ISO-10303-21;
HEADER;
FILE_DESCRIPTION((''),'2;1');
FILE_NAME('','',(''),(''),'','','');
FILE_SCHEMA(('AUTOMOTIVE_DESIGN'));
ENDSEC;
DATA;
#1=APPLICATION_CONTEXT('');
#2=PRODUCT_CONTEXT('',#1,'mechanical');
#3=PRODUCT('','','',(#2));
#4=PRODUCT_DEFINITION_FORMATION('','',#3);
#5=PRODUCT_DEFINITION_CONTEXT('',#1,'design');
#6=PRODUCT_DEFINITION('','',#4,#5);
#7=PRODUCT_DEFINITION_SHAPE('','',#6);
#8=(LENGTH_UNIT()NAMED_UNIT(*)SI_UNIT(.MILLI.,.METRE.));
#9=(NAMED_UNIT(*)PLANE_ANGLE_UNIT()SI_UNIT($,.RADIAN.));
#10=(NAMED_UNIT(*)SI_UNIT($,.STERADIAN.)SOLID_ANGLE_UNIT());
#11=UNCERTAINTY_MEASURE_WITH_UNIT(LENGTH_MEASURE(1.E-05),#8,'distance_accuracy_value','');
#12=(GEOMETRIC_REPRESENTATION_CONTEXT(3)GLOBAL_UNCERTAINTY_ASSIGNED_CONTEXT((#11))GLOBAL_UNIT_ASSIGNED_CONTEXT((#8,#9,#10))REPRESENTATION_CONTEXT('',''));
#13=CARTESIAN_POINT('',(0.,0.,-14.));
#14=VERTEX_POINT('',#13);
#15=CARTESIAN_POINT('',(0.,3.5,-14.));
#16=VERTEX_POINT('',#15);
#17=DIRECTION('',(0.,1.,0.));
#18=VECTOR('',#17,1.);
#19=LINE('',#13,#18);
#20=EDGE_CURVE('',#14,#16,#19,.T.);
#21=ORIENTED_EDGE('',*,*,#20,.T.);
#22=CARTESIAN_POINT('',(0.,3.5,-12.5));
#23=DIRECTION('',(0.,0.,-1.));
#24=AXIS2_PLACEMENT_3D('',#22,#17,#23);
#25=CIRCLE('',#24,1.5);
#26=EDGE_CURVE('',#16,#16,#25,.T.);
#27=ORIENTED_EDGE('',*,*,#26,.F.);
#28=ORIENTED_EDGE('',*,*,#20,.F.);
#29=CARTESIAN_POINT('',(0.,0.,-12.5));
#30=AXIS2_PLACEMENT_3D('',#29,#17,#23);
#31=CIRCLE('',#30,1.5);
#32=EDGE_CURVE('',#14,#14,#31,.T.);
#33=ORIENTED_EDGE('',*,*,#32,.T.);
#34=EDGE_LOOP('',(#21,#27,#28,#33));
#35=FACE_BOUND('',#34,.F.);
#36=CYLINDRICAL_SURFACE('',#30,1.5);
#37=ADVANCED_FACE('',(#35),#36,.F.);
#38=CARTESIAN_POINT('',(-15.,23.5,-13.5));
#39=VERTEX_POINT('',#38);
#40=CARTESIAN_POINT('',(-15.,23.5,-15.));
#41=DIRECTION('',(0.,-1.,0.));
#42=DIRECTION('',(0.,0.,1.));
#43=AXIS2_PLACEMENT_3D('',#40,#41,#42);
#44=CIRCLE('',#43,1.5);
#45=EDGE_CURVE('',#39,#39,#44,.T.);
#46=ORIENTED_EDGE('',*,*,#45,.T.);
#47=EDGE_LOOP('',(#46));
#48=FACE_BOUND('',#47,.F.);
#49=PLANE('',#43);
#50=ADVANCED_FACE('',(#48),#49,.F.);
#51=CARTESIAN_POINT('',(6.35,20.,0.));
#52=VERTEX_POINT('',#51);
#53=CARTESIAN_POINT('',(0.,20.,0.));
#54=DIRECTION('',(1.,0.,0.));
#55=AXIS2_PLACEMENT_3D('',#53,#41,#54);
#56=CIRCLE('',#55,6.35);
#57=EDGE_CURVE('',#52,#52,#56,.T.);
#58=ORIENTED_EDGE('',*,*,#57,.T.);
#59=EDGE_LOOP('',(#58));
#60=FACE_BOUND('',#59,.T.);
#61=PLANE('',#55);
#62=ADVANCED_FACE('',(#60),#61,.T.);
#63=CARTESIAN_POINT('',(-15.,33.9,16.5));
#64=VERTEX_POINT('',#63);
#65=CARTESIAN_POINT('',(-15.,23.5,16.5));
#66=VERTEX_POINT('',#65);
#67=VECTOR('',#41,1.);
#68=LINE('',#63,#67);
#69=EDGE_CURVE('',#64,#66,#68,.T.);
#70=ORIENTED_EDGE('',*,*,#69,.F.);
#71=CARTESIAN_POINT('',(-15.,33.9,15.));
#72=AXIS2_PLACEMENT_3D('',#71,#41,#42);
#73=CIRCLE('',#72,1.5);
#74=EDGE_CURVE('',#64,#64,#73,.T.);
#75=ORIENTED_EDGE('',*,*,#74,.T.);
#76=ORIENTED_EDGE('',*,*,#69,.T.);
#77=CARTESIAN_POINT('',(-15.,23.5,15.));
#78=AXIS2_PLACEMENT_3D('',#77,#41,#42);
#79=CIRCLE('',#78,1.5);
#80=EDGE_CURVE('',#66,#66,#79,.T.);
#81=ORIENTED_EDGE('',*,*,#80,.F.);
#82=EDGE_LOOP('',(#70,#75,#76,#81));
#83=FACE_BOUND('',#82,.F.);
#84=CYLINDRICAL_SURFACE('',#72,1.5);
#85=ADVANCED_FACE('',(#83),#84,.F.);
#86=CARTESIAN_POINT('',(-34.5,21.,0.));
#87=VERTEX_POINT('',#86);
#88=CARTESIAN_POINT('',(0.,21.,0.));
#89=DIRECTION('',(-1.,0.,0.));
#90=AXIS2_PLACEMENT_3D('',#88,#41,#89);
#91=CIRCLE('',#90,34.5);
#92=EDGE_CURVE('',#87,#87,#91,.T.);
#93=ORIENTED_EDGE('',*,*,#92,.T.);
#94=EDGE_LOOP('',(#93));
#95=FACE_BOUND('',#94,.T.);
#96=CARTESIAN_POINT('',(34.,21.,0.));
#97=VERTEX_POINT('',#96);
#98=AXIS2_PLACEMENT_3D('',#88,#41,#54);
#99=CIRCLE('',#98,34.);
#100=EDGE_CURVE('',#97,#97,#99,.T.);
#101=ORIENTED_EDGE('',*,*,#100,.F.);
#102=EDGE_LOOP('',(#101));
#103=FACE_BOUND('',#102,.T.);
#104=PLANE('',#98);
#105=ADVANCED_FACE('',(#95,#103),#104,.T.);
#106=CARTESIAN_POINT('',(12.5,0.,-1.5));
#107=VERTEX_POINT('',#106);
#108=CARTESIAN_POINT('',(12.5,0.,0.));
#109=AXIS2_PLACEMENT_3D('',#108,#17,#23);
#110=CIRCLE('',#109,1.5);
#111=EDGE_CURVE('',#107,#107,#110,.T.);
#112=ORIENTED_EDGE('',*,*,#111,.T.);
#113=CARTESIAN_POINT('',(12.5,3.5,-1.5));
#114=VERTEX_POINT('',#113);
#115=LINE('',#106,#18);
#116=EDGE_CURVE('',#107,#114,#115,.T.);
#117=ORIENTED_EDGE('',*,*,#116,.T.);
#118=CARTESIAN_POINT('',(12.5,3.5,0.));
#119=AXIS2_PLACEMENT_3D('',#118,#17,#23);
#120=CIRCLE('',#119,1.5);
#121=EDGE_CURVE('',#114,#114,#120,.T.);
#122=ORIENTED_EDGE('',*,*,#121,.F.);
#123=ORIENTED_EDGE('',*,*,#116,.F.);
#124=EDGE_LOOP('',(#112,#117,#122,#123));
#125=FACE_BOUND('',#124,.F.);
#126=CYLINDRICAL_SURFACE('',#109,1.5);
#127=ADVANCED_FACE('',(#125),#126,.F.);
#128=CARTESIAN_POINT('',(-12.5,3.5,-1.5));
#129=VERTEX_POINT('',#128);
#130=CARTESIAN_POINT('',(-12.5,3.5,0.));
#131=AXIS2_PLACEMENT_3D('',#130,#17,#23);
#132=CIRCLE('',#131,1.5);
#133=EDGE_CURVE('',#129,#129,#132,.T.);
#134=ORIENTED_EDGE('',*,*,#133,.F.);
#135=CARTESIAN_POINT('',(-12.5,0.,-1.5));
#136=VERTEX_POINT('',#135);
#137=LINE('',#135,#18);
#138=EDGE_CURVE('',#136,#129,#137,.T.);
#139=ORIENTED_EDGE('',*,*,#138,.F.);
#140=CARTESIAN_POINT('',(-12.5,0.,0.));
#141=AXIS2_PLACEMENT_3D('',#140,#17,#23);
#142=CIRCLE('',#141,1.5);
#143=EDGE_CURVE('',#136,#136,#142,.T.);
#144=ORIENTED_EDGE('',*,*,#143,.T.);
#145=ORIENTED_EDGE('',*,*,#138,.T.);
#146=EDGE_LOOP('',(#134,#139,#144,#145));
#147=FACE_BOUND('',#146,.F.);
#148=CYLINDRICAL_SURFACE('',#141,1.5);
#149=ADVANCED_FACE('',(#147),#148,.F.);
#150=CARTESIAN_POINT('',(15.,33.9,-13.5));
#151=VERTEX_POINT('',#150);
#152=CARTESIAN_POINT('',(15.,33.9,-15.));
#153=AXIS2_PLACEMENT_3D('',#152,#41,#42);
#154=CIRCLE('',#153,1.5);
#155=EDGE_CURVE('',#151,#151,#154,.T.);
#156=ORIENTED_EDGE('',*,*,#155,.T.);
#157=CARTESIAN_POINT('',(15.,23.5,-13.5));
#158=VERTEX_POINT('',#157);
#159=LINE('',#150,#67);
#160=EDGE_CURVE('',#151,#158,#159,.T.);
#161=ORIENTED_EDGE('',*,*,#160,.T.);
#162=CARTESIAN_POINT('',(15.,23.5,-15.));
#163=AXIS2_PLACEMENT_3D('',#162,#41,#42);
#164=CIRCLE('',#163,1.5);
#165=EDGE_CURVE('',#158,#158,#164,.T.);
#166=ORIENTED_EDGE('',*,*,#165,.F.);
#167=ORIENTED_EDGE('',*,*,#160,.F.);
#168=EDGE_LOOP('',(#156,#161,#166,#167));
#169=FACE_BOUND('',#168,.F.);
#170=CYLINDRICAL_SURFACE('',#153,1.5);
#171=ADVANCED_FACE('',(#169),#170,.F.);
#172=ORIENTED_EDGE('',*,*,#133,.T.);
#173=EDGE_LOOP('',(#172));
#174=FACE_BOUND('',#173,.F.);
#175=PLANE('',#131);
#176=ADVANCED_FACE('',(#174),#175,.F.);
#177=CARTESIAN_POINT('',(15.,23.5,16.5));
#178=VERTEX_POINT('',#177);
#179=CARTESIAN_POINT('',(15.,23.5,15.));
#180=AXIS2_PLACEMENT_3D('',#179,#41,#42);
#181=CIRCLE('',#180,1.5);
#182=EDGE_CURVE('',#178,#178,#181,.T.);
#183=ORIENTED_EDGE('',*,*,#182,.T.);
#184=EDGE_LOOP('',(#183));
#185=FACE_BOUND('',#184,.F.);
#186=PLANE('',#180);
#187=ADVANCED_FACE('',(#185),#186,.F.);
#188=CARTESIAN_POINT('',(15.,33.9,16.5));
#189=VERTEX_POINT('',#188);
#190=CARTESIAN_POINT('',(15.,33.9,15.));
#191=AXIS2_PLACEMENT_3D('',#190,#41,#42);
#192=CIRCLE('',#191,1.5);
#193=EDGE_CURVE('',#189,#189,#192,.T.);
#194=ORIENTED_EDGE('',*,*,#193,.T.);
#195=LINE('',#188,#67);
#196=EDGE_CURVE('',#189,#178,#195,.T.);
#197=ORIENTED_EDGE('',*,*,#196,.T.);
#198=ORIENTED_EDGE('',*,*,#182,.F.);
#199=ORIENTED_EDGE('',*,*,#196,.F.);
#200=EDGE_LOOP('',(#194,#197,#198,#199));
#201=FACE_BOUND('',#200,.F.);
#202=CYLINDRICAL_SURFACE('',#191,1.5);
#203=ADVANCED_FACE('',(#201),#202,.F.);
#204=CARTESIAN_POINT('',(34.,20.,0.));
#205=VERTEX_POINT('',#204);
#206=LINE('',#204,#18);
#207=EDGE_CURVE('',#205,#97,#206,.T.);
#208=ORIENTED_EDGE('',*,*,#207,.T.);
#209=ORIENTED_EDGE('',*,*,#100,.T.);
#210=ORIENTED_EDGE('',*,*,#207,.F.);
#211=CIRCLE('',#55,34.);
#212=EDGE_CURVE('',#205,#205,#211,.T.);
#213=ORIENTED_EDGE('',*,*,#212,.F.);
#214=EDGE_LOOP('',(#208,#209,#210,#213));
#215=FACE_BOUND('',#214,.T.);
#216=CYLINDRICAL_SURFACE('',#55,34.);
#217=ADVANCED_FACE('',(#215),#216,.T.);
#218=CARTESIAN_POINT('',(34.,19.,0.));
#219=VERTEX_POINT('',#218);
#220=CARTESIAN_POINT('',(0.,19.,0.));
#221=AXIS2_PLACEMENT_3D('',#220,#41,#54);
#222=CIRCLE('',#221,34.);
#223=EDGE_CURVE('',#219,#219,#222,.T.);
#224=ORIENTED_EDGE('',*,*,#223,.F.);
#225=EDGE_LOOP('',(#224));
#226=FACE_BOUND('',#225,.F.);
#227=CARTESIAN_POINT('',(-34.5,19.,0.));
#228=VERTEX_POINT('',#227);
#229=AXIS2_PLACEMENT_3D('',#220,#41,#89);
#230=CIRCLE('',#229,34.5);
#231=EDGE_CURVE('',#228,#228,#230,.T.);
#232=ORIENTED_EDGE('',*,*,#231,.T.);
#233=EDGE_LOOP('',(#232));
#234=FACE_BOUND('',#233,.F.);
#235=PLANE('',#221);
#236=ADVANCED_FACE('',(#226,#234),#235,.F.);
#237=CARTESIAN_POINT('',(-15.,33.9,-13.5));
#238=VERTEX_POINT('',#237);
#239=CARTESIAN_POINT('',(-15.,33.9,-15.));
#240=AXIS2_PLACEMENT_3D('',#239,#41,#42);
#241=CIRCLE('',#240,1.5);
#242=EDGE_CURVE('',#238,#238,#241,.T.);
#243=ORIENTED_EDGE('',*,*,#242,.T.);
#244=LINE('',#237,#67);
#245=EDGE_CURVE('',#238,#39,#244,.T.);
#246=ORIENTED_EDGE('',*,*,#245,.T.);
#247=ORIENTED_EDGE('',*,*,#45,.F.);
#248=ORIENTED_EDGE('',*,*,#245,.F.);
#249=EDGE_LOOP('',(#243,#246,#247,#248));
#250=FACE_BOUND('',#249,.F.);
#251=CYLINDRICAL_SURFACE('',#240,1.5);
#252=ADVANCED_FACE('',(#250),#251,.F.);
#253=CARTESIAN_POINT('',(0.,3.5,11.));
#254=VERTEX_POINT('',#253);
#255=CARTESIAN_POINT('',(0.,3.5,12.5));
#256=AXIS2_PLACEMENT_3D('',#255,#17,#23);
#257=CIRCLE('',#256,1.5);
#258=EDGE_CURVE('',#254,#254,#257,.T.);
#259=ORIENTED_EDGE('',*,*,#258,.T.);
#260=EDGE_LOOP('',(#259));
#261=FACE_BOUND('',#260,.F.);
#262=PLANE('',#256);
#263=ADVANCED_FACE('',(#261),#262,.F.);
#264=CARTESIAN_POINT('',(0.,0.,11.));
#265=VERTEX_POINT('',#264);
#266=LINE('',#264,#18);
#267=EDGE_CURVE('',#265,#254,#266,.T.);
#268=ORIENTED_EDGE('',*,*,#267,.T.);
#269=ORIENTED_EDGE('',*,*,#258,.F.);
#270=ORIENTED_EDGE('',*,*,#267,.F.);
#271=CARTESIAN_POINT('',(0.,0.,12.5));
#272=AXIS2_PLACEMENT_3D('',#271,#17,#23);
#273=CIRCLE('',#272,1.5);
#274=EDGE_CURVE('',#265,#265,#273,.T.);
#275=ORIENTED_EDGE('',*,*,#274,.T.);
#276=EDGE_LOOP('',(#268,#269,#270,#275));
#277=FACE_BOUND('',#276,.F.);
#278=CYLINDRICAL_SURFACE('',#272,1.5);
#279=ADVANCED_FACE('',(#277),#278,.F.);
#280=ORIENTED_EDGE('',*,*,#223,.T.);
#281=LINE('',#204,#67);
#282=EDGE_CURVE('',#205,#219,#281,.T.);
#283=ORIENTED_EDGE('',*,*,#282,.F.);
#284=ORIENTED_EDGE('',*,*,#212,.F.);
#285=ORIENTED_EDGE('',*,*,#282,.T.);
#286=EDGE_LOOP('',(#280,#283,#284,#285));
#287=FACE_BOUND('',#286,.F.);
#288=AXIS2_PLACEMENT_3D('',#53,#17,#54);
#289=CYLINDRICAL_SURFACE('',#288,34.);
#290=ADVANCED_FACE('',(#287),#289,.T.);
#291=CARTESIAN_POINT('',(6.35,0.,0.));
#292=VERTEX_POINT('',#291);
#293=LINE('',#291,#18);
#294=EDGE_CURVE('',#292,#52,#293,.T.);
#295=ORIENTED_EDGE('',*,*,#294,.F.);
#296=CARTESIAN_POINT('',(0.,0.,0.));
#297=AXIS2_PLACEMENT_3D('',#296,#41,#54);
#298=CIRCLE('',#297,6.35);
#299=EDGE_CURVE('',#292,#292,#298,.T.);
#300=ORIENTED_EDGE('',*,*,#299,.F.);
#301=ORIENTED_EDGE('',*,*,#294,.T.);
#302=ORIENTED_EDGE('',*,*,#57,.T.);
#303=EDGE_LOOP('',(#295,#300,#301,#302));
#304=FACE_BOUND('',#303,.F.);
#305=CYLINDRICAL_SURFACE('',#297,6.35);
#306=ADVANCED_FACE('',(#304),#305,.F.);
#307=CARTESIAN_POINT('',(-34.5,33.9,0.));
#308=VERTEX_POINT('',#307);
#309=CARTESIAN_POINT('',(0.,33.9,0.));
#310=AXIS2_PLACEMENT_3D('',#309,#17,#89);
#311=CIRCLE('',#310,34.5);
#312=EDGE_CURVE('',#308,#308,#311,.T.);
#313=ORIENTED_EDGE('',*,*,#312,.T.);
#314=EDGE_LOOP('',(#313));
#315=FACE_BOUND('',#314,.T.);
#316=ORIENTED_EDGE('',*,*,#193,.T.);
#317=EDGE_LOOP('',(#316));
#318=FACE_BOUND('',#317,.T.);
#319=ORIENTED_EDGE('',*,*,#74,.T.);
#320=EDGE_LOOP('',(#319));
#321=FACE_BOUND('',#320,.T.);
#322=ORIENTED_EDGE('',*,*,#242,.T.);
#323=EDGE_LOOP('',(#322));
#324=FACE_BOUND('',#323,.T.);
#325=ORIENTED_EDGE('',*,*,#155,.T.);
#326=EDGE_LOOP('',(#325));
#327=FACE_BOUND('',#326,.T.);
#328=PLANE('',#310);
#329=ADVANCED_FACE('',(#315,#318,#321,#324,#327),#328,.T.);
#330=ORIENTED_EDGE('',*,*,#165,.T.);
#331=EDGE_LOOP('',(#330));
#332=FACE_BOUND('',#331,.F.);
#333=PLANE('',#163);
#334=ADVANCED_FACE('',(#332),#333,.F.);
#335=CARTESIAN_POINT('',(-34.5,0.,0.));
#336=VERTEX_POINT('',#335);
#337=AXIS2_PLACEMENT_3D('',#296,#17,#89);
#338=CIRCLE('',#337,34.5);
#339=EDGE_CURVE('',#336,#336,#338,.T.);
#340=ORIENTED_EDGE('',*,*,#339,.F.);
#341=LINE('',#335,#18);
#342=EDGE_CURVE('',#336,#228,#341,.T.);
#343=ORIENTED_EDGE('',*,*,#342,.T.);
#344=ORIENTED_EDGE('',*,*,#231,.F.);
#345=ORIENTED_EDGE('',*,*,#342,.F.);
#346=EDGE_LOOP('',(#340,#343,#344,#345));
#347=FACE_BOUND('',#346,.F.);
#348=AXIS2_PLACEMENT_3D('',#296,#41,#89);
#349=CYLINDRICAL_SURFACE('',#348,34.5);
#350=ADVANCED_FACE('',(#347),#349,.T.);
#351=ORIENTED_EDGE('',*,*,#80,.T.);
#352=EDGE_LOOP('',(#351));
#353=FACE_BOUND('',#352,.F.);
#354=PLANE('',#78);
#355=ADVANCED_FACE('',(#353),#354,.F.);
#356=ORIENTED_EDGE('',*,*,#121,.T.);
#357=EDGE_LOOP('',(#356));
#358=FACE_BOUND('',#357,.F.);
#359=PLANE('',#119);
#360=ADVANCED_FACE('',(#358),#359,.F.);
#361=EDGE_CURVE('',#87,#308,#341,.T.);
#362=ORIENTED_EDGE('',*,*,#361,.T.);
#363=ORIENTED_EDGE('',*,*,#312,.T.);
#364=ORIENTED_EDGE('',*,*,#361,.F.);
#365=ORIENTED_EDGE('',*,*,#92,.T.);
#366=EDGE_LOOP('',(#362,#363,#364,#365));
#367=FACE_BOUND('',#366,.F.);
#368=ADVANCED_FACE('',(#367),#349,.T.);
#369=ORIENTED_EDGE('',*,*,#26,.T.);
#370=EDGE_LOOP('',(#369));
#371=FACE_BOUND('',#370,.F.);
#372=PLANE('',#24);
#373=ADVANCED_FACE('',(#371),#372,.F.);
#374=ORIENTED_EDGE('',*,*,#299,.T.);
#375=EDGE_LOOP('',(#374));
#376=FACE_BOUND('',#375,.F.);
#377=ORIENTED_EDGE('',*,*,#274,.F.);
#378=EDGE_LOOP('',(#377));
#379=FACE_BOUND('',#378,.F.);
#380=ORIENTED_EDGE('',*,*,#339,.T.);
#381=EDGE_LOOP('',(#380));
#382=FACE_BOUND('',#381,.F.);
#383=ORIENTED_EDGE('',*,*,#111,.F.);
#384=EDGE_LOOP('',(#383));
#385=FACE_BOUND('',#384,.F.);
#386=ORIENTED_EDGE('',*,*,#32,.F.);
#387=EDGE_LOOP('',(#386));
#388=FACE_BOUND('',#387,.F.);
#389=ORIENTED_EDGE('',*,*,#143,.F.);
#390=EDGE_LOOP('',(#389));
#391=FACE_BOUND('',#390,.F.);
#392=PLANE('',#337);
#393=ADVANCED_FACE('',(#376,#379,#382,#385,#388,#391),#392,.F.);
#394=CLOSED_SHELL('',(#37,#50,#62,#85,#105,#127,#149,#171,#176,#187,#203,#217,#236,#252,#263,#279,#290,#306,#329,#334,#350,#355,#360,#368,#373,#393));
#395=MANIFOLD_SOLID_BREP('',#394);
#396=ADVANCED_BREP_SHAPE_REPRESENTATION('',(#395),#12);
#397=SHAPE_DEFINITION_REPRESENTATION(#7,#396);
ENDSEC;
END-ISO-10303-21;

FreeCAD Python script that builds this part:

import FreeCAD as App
import Part
import Sketcher
from FreeCAD import Vector
Q = App.Units.Quantity

doc = App.newDocument("Part")
body = doc.addObject("PartDesign::Body", "Body")

# Sketch on XZ plane
sketch1 = body.newObject("Sketcher::SketchObject", "Sketch")
sketch1.AttachmentSupport = (doc.getObject("XZ_Plane"), [""])
sketch1.MapMode = "FlatFace"
sketch1.addGeometry(Part.Circle(Vector(0, 0, 0), Vector(0, 0, 1), 34), False)
sketch1.addConstraint(Sketcher.Constraint("Coincident", 0, 3, -1, 1))
sketch1.addConstraint(Sketcher.Constraint("Diameter", 0, Q("69 mm")))
pad1 = body.newObject("PartDesign::Pad", "Pad")
pad1.Profile = sketch1
pad1.Length = 33.9
pad1.Reversed = True

# Sketch on XZ plane
sketch2 = body.newObject("Sketcher::SketchObject", "Sketch001")
sketch2.AttachmentSupport = (doc.getObject("XZ_Plane"), [""])
sketch2.MapMode = "FlatFace"
sketch2.AttachmentOffset = App.Placement(Vector(0, 0, -33.9), App.Rotation())
sketch2.addGeometry(Part.Circle(Vector(-15, 15, 0), Vector(0, 0, 1), 1.5), False)
sketch2.addGeometry(Part.Circle(Vector(15, 15, 0), Vector(0, 0, 1), 1.5), False)
sketch2.addGeometry(Part.Circle(Vector(-15, -15, 0), Vector(0, 0, 1), 1.5), False)
sketch2.addGeometry(Part.Circle(Vector(15, -15, 0), Vector(0, 0, 1), 1.5), False)
sketch2.addConstraint(Sketcher.Constraint("Equal", 0, 1))
sketch2.addConstraint(Sketcher.Constraint("Equal", 1, 2))
sketch2.addConstraint(Sketcher.Constraint("Equal", 2, 3))
sketch2.addConstraint(Sketcher.Constraint("Symmetric", 1, 3, 2, 3, -1, 1))
sketch2.addConstraint(Sketcher.Constraint("Symmetric", 0, 3, 3, 3, -1, 1))
sketch2.addConstraint(Sketcher.Constraint("Symmetric", 0, 3, 1, 3, -2))
sketch2.addConstraint(Sketcher.Constraint("Diameter", 0, Q("3 mm")))
sketch2.addConstraint(Sketcher.Constraint("DistanceX", 0, 3, -1, 1, Q("15 mm")))
sketch2.addConstraint(Sketcher.Constraint("DistanceY", -1, 1, 0, 3, Q("15 mm")))
doc.recompute()
hole = body.newObject("PartDesign::Hole", "Hole")
hole.Profile = sketch2
hole.ThreadType = "None"
hole.Diameter = 3
hole.DepthType = "Dimension"
hole.Depth = 10.4
hole.DrillPoint = "Flat"
hole.Reversed = True

# Sketch on XZ plane
sketch3 = body.newObject("Sketcher::SketchObject", "Sketch002")
sketch3.AttachmentSupport = (doc.getObject("XZ_Plane"), [""])
sketch3.MapMode = "FlatFace"
sketch3.addGeometry(Part.Circle(Vector(0, 0, 0), Vector(0, 0, 1), 6), False)
sketch3.addConstraint(Sketcher.Constraint("Coincident", 0, 3, -1, 1))
sketch3.addConstraint(Sketcher.Constraint("Diameter", 0, Q("12.7 mm")))
pocket1 = body.newObject("PartDesign::Pocket", "Pocket")
pocket1.Profile = sketch3
pocket1.Length = 20

# Sketch on XZ plane
sketch4 = body.newObject("Sketcher::SketchObject", "Sketch003")
sketch4.AttachmentSupport = (doc.getObject("XZ_Plane"), [""])
sketch4.MapMode = "FlatFace"
sketch4.AttachmentOffset = App.Placement(Vector(0, 0, -20), App.Rotation())
sketch4.addGeometry(Part.Circle(Vector(0, 0, 0), Vector(0, 0, 1), 34), False)
sketch4.addGeometry(Part.Circle(Vector(0, 0, 0), Vector(0, 0, 1), 34), False)
sketch4.addConstraint(Sketcher.Constraint("Coincident", 0, 3, -1, 1))
sketch4.addConstraint(Sketcher.Constraint("Coincident", 1, 3, -1, 1))
sketch4.addConstraint(Sketcher.Constraint("Diameter", 1, Q("68 mm")))
sketch4.addConstraint(Sketcher.Constraint("Diameter", 0, Q("69 mm")))
pocket2 = body.newObject("PartDesign::Pocket", "Pocket001")
pocket2.Profile = sketch4
pocket2.Length = 2
pocket2.Midplane = True

# Sketch on XZ plane
sketch5 = body.newObject("Sketcher::SketchObject", "Sketch004")
sketch5.AttachmentSupport = (doc.getObject("XZ_Plane"), [""])
sketch5.MapMode = "FlatFace"
sketch5.addGeometry(Part.Circle(Vector(0, -12.5, 0), Vector(0, 0, 1), 1.5), False)
sketch5.addGeometry(Part.Circle(Vector(12.5, 0, 0), Vector(0, 0, 1), 1.5), False)
sketch5.addGeometry(Part.Circle(Vector(0, 12.5, 0), Vector(0, 0, 1), 1.5), False)
sketch5.addGeometry(Part.Circle(Vector(-12.5, 0, 0), Vector(0, 0, 1), 1.5), False)
sketch5.addConstraint(Sketcher.Constraint("Equal", 0, 1))
sketch5.addConstraint(Sketcher.Constraint("Equal", 1, 2))
sketch5.addConstraint(Sketcher.Constraint("Equal", 2, 3))
sketch5.addConstraint(Sketcher.Constraint("Symmetric", 0, 3, 2, 3, -1, 1))
sketch5.addConstraint(Sketcher.Constraint("Symmetric", 1, 3, 3, 3, -1, 1))
sketch5.addConstraint(Sketcher.Constraint("PointOnObject", 0, 3, -2))
sketch5.addConstraint(Sketcher.Constraint("PointOnObject", 1, 3, -1))
sketch5.addConstraint(Sketcher.Constraint("Diameter", 0, Q("3 mm")))
sketch5.addConstraint(Sketcher.Constraint("DistanceY", 0, 3, 2, 3, Q("25 mm")))
sketch5.addConstraint(Sketcher.Constraint("DistanceX", 3, 3, 1, 3, Q("25 mm")))
doc.recompute()
hole2 = body.newObject("PartDesign::Hole", "Hole001")
hole2.Profile = sketch5
hole2.ThreadType = "None"
hole2.Diameter = 3
hole2.DepthType = "Dimension"
hole2.Depth = 3.5
hole2.DrillPoint = "Flat"

doc.recompute()
